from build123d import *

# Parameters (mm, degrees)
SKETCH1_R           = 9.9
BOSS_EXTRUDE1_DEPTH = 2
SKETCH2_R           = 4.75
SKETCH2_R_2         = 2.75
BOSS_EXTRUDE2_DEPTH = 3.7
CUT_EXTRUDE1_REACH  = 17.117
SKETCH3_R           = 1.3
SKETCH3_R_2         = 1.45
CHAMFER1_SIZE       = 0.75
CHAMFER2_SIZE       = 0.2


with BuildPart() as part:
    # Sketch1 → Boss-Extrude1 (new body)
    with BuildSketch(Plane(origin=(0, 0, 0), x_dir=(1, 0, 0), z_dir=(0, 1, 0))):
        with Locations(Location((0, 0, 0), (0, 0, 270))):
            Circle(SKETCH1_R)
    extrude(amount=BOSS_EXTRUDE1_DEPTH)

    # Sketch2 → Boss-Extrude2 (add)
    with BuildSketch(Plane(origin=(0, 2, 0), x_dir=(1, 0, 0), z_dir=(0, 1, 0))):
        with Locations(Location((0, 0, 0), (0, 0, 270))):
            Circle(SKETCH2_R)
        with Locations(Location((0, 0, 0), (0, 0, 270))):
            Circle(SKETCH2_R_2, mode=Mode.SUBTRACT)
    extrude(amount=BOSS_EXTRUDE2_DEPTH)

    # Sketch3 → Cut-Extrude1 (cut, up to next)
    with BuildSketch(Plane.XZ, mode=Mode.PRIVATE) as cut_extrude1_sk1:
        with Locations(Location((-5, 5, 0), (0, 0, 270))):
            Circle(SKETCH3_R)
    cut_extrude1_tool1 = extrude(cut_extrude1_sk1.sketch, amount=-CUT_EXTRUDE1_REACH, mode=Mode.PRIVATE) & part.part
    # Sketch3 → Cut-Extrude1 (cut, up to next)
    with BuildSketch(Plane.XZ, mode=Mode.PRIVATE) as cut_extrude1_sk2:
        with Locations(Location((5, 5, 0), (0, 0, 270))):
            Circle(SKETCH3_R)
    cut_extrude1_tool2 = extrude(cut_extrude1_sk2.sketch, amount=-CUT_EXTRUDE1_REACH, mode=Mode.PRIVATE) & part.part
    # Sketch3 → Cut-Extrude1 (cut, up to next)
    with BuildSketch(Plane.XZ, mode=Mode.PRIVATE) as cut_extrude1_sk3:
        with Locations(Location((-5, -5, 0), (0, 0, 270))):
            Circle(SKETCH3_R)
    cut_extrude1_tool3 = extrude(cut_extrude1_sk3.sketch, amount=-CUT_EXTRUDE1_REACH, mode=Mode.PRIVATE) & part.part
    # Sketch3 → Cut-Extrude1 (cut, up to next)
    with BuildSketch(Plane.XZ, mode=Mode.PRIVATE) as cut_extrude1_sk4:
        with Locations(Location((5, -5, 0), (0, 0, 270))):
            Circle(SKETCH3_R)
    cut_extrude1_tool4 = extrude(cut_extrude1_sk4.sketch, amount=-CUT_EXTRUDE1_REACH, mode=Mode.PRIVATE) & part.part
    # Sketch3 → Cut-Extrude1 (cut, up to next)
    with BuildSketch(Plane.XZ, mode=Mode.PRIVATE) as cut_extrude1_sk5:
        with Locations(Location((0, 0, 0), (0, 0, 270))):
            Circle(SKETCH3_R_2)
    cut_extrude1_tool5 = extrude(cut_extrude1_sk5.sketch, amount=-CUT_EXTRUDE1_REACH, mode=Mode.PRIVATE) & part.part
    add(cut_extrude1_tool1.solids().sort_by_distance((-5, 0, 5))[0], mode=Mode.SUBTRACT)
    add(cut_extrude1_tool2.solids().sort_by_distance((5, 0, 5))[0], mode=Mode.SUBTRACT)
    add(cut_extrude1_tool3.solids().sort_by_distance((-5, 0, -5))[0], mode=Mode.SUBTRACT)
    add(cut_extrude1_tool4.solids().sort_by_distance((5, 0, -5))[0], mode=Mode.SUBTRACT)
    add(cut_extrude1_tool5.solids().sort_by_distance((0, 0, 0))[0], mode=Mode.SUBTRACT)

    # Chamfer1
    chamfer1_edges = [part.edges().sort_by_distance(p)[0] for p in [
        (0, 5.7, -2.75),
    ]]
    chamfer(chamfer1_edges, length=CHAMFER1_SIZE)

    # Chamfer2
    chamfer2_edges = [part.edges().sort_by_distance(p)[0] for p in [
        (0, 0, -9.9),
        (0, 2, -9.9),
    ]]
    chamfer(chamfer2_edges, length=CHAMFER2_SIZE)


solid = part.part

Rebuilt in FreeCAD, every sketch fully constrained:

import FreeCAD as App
import Part
import Sketcher
Q = App.Units.Quantity


def edges_at(feature, points):
    """Names of the edges that pass closest to the given points."""
    edges = feature.Shape.Edges
    near = lambda p: min(range(len(edges)), key=lambda i: edges[i].distToShape(Part.Vertex(*p))[0])
    return sorted({f"Edge{near(p) + 1}" for p in points})

doc = App.newDocument("Part")
params = doc.addObject("Spreadsheet::Sheet", "Params")
for row, (alias, value) in enumerate([
    ("sketch1_diameter", "19.8 mm"),
    ("pad1_length", "2 mm"),
    ("sketch2_diameter", "9.5 mm"),
    ("sketch2_diameter2", "5.5 mm"),
    ("pad2_length", "3.7 mm"),
    ("sketch3_diameter", "2.6 mm"),
    ("sketch4_diameter", "2.6 mm"),
    ("sketch5_diameter", "2.6 mm"),
    ("sketch6_diameter", "2.6 mm"),
    ("sketch7_diameter", "2.9 mm"),
    ("chamfer_size", "0.75 mm"),
    ("chamfer2_size", "0.2 mm"),
], start=1):
    params.set(f"A{row}", alias)
    params.set(f"B{row}", "=" + value)
    params.setAlias(f"B{row}", alias)

body = doc.addObject("PartDesign::Body", "Body")

# Sketch on XZ plane
sketch1 = body.newObject("Sketcher::SketchObject", "Sketch")
sketch1.AttachmentSupport = (doc.getObject("XZ_Plane"), [""])
sketch1.MapMode = "FlatFace"
sketch1.addGeometry(Part.Circle(App.Vector(0, 0, 0), App.Vector(0, 0, 1), 10), False)
sketch1.addConstraint(Sketcher.Constraint("Coincident", 0, 3, -1, 1))
sketch1.addConstraint(Sketcher.Constraint("Diameter", 0, Q("19.8 mm")))
sketch1.setExpression("Constraints[1]", "Params.sketch1_diameter")
pad1 = body.newObject("PartDesign::Pad", "Pad")
pad1.Profile = sketch1
pad1.setExpression("Length", "Params.pad1_length")
pad1.Reversed = True

# Sketch on XZ plane
sketch2 = body.newObject("Sketcher::SketchObject", "Sketch001")
sketch2.AttachmentSupport = (doc.getObject("XZ_Plane"), [""])
sketch2.MapMode = "FlatFace"
sketch2.AttachmentOffset = App.Placement(App.Vector(0, 0, -2), App.Rotation())
sketch2.addGeometry(Part.Circle(App.Vector(0, 0, 0), App.Vector(0, 0, 1), 4.8), False)
sketch2.addGeometry(Part.Circle(App.Vector(0, 0, 0), App.Vector(0, 0, 1), 2.8), False)
sketch2.addConstraint(Sketcher.Constraint("Coincident", 0, 3, -1, 1))
sketch2.addConstraint(Sketcher.Constraint("Coincident", 1, 3, -1, 1))
sketch2.addConstraint(Sketcher.Constraint("Diameter", 0, Q("9.5 mm")))
sketch2.addConstraint(Sketcher.Constraint("Diameter", 1, Q("5.5 mm")))
sketch2.setExpression("Constraints[2]", "Params.sketch2_diameter")
sketch2.setExpression("Constraints[3]", "Params.sketch2_diameter2")
pad2 = body.newObject("PartDesign::Pad", "Pad001")
pad2.Profile = sketch2
pad2.setExpression("Length", "Params.pad2_length")
pad2.Reversed = True

# Sketch on XZ plane
sketch3 = body.newObject("Sketcher::SketchObject", "Sketch002")
sketch3.AttachmentSupport = (doc.getObject("XZ_Plane"), [""])
sketch3.MapMode = "FlatFace"
sketch3.addGeometry(Part.Circle(App.Vector(-5, 5, 0), App.Vector(0, 0, 1), 1.3), False)
sketch3.addConstraint(Sketcher.Constraint("Diameter", 0, Q("2.6 mm")))
sketch3.addConstraint(Sketcher.Constraint("DistanceX", 0, 3, -1, 1, Q("5 mm")))
sketch3.addConstraint(Sketcher.Constraint("DistanceY", -1, 1, 0, 3, Q("5 mm")))
sketch3.setExpression("Constraints[0]", "Params.sketch3_diameter")
pocket1 = body.newObject("PartDesign::Pocket", "Pocket")
pocket1.Profile = sketch3
pocket1.Type = "UpToFirst"

# Sketch on XZ plane
sketch4 = body.newObject("Sketcher::SketchObject", "Sketch003")
sketch4.AttachmentSupport = (doc.getObject("XZ_Plane"), [""])
sketch4.MapMode = "FlatFace"
sketch4.addGeometry(Part.Circle(App.Vector(5, 5, 0), App.Vector(0, 0, 1), 1.3), False)
sketch4.addConstraint(Sketcher.Constraint("Diameter", 0, Q("2.6 mm")))
sketch4.addConstraint(Sketcher.Constraint("DistanceX", -1, 1, 0, 3, Q("5 mm")))
sketch4.addConstraint(Sketcher.Constraint("DistanceY", -1, 1, 0, 3, Q("5 mm")))
sketch4.setExpression("Constraints[0]", "Params.sketch4_diameter")
pocket2 = body.newObject("PartDesign::Pocket", "Pocket001")
pocket2.Profile = sketch4
pocket2.Type = "UpToFirst"

# Sketch on XZ plane
sketch5 = body.newObject("Sketcher::SketchObject", "Sketch004")
sketch5.AttachmentSupport = (doc.getObject("XZ_Plane"), [""])
sketch5.MapMode = "FlatFace"
sketch5.addGeometry(Part.Circle(App.Vector(-5, -5, 0), App.Vector(0, 0, 1), 1.3), False)
sketch5.addConstraint(Sketcher.Constraint("Diameter", 0, Q("2.6 mm")))
sketch5.addConstraint(Sketcher.Constraint("DistanceX", 0, 3, -1, 1, Q("5 mm")))
sketch5.addConstraint(Sketcher.Constraint("DistanceY", 0, 3, -1, 1, Q("5 mm")))
sketch5.setExpression("Constraints[0]", "Params.sketch5_diameter")
pocket3 = body.newObject("PartDesign::Pocket", "Pocket002")
pocket3.Profile = sketch5
pocket3.Type = "UpToFirst"

# Sketch on XZ plane
sketch6 = body.newObject("Sketcher::SketchObject", "Sketch005")
sketch6.AttachmentSupport = (doc.getObject("XZ_Plane"), [""])
sketch6.MapMode = "FlatFace"
sketch6.addGeometry(Part.Circle(App.Vector(5, -5, 0), App.Vector(0, 0, 1), 1.3), False)
sketch6.addConstraint(Sketcher.Constraint("Diameter", 0, Q("2.6 mm")))
sketch6.addConstraint(Sketcher.Constraint("DistanceX", -1, 1, 0, 3, Q("5 mm")))
sketch6.addConstraint(Sketcher.Constraint("DistanceY", 0, 3, -1, 1, Q("5 mm")))
sketch6.setExpression("Constraints[0]", "Params.sketch6_diameter")
pocket4 = body.newObject("PartDesign::Pocket", "Pocket003")
pocket4.Profile = sketch6
pocket4.Type = "UpToFirst"

# Sketch on XZ plane
sketch7 = body.newObject("Sketcher::SketchObject", "Sketch006")
sketch7.AttachmentSupport = (doc.getObject("XZ_Plane"), [""])
sketch7.MapMode = "FlatFace"
sketch7.addGeometry(Part.Circle(App.Vector(0, 0, 0), App.Vector(0, 0, 1), 1.4), False)
sketch7.addConstraint(Sketcher.Constraint("Coincident", 0, 3, -1, 1))
sketch7.addConstraint(Sketcher.Constraint("Diameter", 0, Q("2.9 mm")))
sketch7.setExpression("Constraints[1]", "Params.sketch7_diameter")
pocket5 = body.newObject("PartDesign::Pocket", "Pocket004")
pocket5.Profile = sketch7
pocket5.Type = "UpToFirst"
doc.recompute()

chamfer = body.newObject("PartDesign::Chamfer", "Chamfer")
chamfer.Base = (pocket5, edges_at(pocket5, [(0, 5.7, -2.75)]))
chamfer.setExpression("Size", "Params.chamfer_size")
doc.recompute()

chamfer2 = body.newObject("PartDesign::Chamfer", "Chamfer001")
chamfer2.Base = (chamfer, edges_at(chamfer, [(0, 0, -9.9), (0, 2, -9.9)]))
chamfer2.setExpression("Size", "Params.chamfer2_size")

doc.recompute()
